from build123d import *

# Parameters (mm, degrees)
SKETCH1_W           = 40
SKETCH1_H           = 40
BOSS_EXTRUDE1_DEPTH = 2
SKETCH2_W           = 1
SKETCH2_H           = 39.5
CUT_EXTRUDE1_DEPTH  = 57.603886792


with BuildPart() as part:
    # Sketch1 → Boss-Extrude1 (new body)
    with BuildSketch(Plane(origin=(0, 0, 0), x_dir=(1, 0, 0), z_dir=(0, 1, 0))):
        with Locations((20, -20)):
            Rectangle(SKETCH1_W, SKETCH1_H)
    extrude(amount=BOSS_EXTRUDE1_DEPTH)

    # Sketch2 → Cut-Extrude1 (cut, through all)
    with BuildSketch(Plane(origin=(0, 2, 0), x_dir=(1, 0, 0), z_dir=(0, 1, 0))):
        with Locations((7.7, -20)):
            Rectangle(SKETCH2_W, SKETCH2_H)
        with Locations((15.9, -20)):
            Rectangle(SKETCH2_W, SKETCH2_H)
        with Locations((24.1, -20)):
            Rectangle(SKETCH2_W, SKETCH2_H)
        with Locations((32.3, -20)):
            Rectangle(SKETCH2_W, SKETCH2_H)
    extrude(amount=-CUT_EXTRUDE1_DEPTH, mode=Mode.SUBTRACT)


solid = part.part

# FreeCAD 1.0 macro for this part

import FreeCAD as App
import Part
import Sketcher
Q = App.Units.Quantity


def add_polygon(sketch, points):
    """Adds a closed chain of lines whose ends are joined by coincident constraints."""
    first, n = sketch.GeometryCount, len(points)
    for a, b in zip(points, points[1:] + points[:1]):
        sketch.addGeometry(Part.LineSegment(App.Vector(*a, 0), App.Vector(*b, 0)), False)
    for i in range(n):
        sketch.addConstraint(Sketcher.Constraint("Coincident", first + i, 2, first + (i + 1) % n, 1))

doc = App.newDocument("Part")
body = doc.addObject("PartDesign::Body", "Body")

# Sketch on XZ plane
sketch1 = doc.addObject("Sketcher::SketchObject", "Sketch")
body.addObject(sketch1)
sketch1.AttachmentSupport = (doc.XZ_Plane, [""])
sketch1.MapMode = "FlatFace"
add_polygon(sketch1, [(0, 0), (0, 40), (40, 40), (40, 0)])  # lines 0-3
sketch1.addConstraint(Sketcher.Constraint("Vertical", 0))
sketch1.addConstraint(Sketcher.Constraint("Horizontal", 1))
sketch1.addConstraint(Sketcher.Constraint("Vertical", 2))
sketch1.addConstraint(Sketcher.Constraint("Horizontal", 3))
sketch1.addConstraint(Sketcher.Constraint("Coincident", 3, 2, -1, 1))
sketch1.addConstraint(Sketcher.Constraint("Equal", 3, 0))
sketch1.addConstraint(Sketcher.Constraint("DistanceX", 1, 1, 1, 2, Q("40 mm")))
pad1 = doc.addObject("PartDesign::Pad", "Pad")
body.addObject(pad1)
pad1.Profile = sketch1
pad1.Length = 2
pad1.Reversed = True

# Sketch on XZ plane
sketch2 = doc.addObject("Sketcher::SketchObject", "Sketch001")
body.addObject(sketch2)
sketch2.AttachmentSupport = (doc.XZ_Plane, [""])
sketch2.MapMode = "FlatFace"
sketch2.AttachmentOffset = App.Placement(App.Vector(0, 0, -2), App.Rotation())
add_polygon(sketch2, [(7.2, 0.2), (7.2, 39.8), (8.2, 39.8), (8.2, 0.2)])  # lines 0-3
add_polygon(sketch2, [(15.4, 0.2), (15.4, 39.8), (16.4, 39.8), (16.4, 0.2)])  # lines 4-7
add_polygon(sketch2, [(23.6, 0.2), (23.6, 39.8), (24.6, 39.8), (24.6, 0.2)])  # lines 8-11
add_polygon(sketch2, [(31.8, 0.2), (31.8, 39.8), (32.8, 39.8), (32.8, 0.2)])  # lines 12-15
sketch2.addConstraint(Sketcher.Constraint("Vertical", 0))
sketch2.addConstraint(Sketcher.Constraint("Horizontal", 1))
sketch2.addConstraint(Sketcher.Constraint("Vertical", 2))
sketch2.addConstraint(Sketcher.Constraint("Horizontal", 3))
sketch2.addConstraint(Sketcher.Constraint("Vertical", 4))
sketch2.addConstraint(Sketcher.Constraint("Horizontal", 5))
sketch2.addConstraint(Sketcher.Constraint("Vertical", 6))
sketch2.addConstraint(Sketcher.Constraint("Horizontal", 7))
sketch2.addConstraint(Sketcher.Constraint("Vertical", 8))
sketch2.addConstraint(Sketcher.Constraint("Horizontal", 9))
sketch2.addConstraint(Sketcher.Constraint("Vertical", 10))
sketch2.addConstraint(Sketcher.Constraint("Horizontal", 11))
sketch2.addConstraint(Sketcher.Constraint("Vertical", 12))
sketch2.addConstraint(Sketcher.Constraint("Horizontal", 13))
sketch2.addConstraint(Sketcher.Constraint("Vertical", 14))
sketch2.addConstraint(Sketcher.Constraint("Horizontal", 15))
sketch2.addConstraint(Sketcher.Constraint("Horizontal", 1, 2, 4, 2))
sketch2.addConstraint(Sketcher.Constraint("Horizontal", 3, 2, 6, 2))
sketch2.addConstraint(Sketcher.Constraint("Horizontal", 5, 2, 8, 2))
sketch2.addConstraint(Sketcher.Constraint("Horizontal", 7, 2, 10, 2))
sketch2.addConstraint(Sketcher.Constraint("Horizontal", 9, 2, 12, 2))
sketch2.addConstraint(Sketcher.Constraint("Horizontal", 11, 2, 14, 2))
sketch2.addConstraint(Sketcher.Constraint("Equal", 3, 5))
sketch2.addConstraint(Sketcher.Constraint("Equal", 7, 9))
sketch2.addConstraint(Sketcher.Constraint("Equal", 11, 13))
sketch2.addConstraint(Sketcher.Constraint("DistanceX", 1, 1, 1, 2, Q("1 mm")))
sketch2.addConstraint(Sketcher.Constraint("DistanceY", 0, 1, 0, 2, Q("39.5 mm")))
sketch2.addConstraint(Sketcher.Constraint("DistanceX", -1, 1, 0, 2, Q("7.2 mm")))
sketch2.addConstraint(Sketcher.Constraint("DistanceX", -1, 1, 4, 2, Q("15.4 mm")))
sketch2.addConstraint(Sketcher.Constraint("DistanceX", -1, 1, 8, 2, Q("23.6 mm")))
sketch2.addConstraint(Sketcher.Constraint("DistanceX", -1, 1, 12, 2, Q("31.8 mm")))
sketch2.addConstraint(Sketcher.Constraint("DistanceY", -1, 1, 0, 2, Q("39.75 mm")))
pocket1 = doc.addObject("PartDesign::Pocket", "Pocket")
body.addObject(pocket1)
pocket1.Profile = sketch2
pocket1.Type = "ThroughAll"
pocket1.Reversed = True

doc.recompute()
